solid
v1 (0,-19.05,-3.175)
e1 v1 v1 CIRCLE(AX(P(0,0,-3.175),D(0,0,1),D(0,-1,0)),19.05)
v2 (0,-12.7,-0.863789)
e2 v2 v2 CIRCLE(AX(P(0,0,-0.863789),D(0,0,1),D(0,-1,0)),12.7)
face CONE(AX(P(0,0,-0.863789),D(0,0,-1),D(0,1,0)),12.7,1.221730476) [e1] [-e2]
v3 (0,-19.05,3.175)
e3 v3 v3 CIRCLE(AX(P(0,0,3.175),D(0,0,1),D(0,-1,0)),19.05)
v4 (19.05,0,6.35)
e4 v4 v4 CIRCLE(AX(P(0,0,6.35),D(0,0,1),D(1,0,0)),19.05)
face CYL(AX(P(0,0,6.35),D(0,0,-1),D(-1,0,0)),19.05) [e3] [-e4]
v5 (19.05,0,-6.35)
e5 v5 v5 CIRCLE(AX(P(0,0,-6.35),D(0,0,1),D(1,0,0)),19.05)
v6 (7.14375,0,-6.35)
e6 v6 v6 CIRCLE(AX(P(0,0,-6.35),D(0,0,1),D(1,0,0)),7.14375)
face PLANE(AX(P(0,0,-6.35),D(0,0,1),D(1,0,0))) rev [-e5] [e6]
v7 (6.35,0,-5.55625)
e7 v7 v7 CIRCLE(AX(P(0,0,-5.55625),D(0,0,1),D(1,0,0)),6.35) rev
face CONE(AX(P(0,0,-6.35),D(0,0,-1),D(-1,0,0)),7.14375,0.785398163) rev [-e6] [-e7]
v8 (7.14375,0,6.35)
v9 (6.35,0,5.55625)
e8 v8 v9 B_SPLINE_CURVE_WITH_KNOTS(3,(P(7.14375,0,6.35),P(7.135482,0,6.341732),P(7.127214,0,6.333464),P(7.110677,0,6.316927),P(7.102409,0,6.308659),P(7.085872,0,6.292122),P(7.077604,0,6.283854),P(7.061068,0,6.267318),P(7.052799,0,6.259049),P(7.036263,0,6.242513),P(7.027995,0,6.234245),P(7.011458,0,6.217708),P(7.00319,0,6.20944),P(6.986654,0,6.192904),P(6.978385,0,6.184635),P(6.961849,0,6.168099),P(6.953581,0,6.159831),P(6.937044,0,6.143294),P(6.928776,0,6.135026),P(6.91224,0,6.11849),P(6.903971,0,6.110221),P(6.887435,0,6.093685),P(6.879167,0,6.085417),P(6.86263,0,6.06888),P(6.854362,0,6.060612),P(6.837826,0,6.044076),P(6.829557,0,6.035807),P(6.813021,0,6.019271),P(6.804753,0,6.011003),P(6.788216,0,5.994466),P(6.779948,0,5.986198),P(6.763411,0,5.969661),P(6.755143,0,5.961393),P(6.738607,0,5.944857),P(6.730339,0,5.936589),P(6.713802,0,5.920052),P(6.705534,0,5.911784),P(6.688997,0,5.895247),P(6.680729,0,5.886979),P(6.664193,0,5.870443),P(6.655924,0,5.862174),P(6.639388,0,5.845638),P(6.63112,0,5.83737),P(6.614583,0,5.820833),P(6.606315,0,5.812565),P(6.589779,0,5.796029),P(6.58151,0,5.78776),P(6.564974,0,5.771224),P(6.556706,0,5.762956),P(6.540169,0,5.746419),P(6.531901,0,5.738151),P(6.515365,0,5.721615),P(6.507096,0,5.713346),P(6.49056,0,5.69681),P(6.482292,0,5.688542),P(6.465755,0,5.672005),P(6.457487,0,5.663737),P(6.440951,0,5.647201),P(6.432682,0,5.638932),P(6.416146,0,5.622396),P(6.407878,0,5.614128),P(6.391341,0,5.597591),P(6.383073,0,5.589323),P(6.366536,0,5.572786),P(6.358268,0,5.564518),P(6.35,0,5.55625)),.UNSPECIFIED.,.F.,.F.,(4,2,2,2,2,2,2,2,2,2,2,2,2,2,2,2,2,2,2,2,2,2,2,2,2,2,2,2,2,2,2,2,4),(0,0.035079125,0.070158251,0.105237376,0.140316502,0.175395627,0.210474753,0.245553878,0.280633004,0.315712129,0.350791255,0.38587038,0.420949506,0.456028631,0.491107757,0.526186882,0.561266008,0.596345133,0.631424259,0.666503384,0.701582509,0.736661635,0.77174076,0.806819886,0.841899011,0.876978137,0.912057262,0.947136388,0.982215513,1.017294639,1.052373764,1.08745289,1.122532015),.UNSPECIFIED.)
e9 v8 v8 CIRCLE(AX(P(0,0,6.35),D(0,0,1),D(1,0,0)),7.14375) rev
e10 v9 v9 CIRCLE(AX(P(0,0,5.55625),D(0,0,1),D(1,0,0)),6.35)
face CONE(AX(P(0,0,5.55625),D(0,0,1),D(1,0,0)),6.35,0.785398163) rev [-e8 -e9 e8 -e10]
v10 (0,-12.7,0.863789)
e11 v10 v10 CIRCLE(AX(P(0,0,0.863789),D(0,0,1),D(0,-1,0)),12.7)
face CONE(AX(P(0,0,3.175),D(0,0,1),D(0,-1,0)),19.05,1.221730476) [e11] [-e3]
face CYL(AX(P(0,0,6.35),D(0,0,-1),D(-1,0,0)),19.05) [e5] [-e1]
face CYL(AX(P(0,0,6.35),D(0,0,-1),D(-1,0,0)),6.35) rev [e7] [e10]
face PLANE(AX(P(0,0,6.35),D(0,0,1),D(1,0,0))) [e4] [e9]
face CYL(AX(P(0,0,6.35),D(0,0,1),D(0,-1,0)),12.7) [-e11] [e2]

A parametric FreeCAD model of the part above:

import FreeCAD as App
import Part
import Sketcher
from FreeCAD import Vector
Q = App.Units.Quantity


def edges_at(feature, points):
    """Names of the edges that pass closest to the given points."""
    edges = feature.Shape.Edges
    near = lambda p: min(range(len(edges)), key=lambda i: edges[i].distToShape(Part.Vertex(*p))[0])
    return sorted({f"Edge{near(p) + 1}" for p in points})


def add_polygon(sketch, points):
    """Adds a closed chain of lines whose ends are joined by coincident constraints."""
    first, n = sketch.GeometryCount, len(points)
    for a, b in zip(points, points[1:] + points[:1]):
        sketch.addGeometry(Part.LineSegment(App.Vector(*a, 0), App.Vector(*b, 0)), False)
    for i in range(n):
        sketch.addConstraint(Sketcher.Constraint("Coincident", first + i, 2, first + (i + 1) % n, 1))

doc = App.newDocument("Part")
body = doc.addObject("PartDesign::Body", "Body")

# Sketch on XY plane
sketch1 = body.newObject("Sketcher::SketchObject", "Sketch")
sketch1.AttachmentSupport = (doc.getObject("XY_Plane"), [""])
sketch1.MapMode = "FlatFace"
sketch1.addGeometry(Part.Circle(Vector(0, 0, 0), Vector(0, 0, 1), 19), False)
sketch1.addGeometry(Part.Circle(Vector(0, 0, 0), Vector(0, 0, 1), 6), False)
sketch1.addConstraint(Sketcher.Constraint("Coincident", 0, 3, -1, 1))
sketch1.addConstraint(Sketcher.Constraint("Coincident", 1, 3, -1, 1))
sketch1.addConstraint(Sketcher.Constraint("Diameter", 0, Q("1.5 in")))
sketch1.addConstraint(Sketcher.Constraint("Diameter", 1, Q("0.5 in")))
pad1 = body.newObject("PartDesign::Pad", "Pad")
pad1.Profile = sketch1
pad1.Length = Q("0.5 in")
pad1.Midplane = True
doc.recompute()

chamfer = body.newObject("PartDesign::Chamfer", "Chamfer")
chamfer.Base = (pad1, edges_at(pad1, [(-6.35, 0, -6.35), (-6.35, 0, 6.35)]))
chamfer.Size = Q("0.03125 in")

# Sketch on YZ plane
sketch2 = body.newObject("Sketcher::SketchObject", "Sketch001")
sketch2.AttachmentSupport = (doc.getObject("YZ_Plane"), [""])
sketch2.MapMode = "FlatFace"
add_polygon(sketch2, [(19.1, -3.2), (19.1, 3.2), (12.7, 0.9), (12.7, -0.9)])  # lines 0-3
sketch2.addConstraint(Sketcher.Constraint("Vertical", 0))
sketch2.addConstraint(Sketcher.Constraint("Vertical", 2))
sketch2.addConstraint(Sketcher.Constraint("Equal", 1, 3))
sketch2.addConstraint(Sketcher.Constraint("Angle", 1, Q("-160 deg")))
sketch2.addConstraint(Sketcher.Constraint("DistanceY", 0, 1, 0, 2, Q("0.25 in")))
sketch2.addConstraint(Sketcher.Constraint("DistanceX", -1, 1, 1, 2, Q("0.5 in")))
sketch2.addConstraint(Sketcher.Constraint("DistanceX", -1, 1, 0, 2, Q("0.75 in")))
sketch2.addConstraint(Sketcher.Constraint("DistanceY", -1, 1, 0, 2, Q("0.125 in")))
groove = body.newObject("PartDesign::Groove", "Groove")
groove.Profile = sketch2
groove.ReferenceAxis = (sketch2, ["V_Axis"])
groove.Angle = 360

doc.recompute()
